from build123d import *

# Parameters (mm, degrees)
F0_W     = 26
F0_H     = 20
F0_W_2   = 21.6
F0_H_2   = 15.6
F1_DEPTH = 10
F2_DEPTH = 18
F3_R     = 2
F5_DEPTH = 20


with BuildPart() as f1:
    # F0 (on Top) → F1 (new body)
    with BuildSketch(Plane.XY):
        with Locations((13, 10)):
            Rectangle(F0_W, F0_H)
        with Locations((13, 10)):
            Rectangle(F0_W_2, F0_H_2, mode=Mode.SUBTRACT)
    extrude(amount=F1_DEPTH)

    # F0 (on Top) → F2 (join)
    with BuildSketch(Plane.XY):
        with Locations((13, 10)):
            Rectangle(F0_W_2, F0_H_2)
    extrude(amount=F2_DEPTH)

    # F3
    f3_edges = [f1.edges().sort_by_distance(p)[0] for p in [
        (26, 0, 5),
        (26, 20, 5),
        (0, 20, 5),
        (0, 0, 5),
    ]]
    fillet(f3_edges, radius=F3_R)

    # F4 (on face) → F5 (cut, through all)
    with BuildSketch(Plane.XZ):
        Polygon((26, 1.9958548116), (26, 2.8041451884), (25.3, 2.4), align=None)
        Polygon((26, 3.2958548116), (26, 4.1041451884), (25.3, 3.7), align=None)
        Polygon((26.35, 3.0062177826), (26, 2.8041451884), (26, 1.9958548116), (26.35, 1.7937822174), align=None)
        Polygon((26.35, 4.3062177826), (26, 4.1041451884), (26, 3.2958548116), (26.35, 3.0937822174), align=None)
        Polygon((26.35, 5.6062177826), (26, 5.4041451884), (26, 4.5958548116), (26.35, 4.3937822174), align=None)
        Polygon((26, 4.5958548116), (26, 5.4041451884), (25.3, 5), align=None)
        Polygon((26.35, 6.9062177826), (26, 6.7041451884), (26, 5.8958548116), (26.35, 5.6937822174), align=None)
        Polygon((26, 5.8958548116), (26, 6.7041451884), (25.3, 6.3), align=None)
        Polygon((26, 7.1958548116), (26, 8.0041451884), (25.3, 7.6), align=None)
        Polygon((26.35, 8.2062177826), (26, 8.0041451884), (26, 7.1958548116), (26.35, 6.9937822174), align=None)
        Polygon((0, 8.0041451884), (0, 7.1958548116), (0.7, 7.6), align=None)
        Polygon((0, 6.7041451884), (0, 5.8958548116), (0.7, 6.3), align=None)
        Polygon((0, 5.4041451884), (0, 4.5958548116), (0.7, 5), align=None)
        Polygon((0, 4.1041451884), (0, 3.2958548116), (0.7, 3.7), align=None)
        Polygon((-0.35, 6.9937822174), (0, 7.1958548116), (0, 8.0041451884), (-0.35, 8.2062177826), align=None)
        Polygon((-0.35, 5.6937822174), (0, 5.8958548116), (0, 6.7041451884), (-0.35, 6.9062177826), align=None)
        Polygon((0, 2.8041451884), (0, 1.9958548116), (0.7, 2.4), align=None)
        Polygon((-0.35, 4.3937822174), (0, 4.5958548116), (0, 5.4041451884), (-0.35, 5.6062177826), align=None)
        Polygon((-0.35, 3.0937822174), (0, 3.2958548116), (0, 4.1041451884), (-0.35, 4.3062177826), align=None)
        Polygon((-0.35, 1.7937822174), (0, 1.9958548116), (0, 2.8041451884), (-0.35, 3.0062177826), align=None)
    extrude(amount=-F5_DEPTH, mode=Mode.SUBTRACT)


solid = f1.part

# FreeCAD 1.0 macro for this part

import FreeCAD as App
import Part
import Sketcher
Q = App.Units.Quantity


def edges_at(feature, points):
    """Names of the edges that pass closest to the given points."""
    edges = feature.Shape.Edges
    near = lambda p: min(range(len(edges)), key=lambda i: edges[i].distToShape(Part.Vertex(*p))[0])
    return sorted({f"Edge{near(p) + 1}" for p in points})

doc = App.newDocument("Part")
body = doc.addObject("PartDesign::Body", "Body")

# Sketch on XY plane
sketch1 = body.newObject("Sketcher::SketchObject", "Sketch")
sketch1.AttachmentSupport = (doc.getObject("XY_Plane"), [""])
sketch1.MapMode = "FlatFace"
sketch1.addGeometry(Part.LineSegment(App.Vector(0, 20, 0), App.Vector(0, 0, 0)), False)
sketch1.addGeometry(Part.LineSegment(App.Vector(0, 0, 0), App.Vector(26, 0, 0)), False)
sketch1.addGeometry(Part.LineSegment(App.Vector(26, 0, 0), App.Vector(26, 20, 0)), False)
sketch1.addGeometry(Part.LineSegment(App.Vector(26, 20, 0), App.Vector(0, 20, 0)), False)
sketch1.addGeometry(Part.LineSegment(App.Vector(24, 2, 0), App.Vector(2, 2, 0)), False)
sketch1.addGeometry(Part.LineSegment(App.Vector(2, 2, 0), App.Vector(2, 18, 0)), False)
sketch1.addGeometry(Part.LineSegment(App.Vector(2, 18, 0), App.Vector(24, 18, 0)), False)
sketch1.addGeometry(Part.LineSegment(App.Vector(24, 18, 0), App.Vector(24, 2, 0)), False)
sketch1.addConstraint(Sketcher.Constraint("Coincident", 0, 2, 1, 1))
sketch1.addConstraint(Sketcher.Constraint("Coincident", 1, 2, 2, 1))
sketch1.addConstraint(Sketcher.Constraint("Coincident", 2, 2, 3, 1))
sketch1.addConstraint(Sketcher.Constraint("Coincident", 3, 2, 0, 1))
sketch1.addConstraint(Sketcher.Constraint("Coincident", 4, 2, 5, 1))
sketch1.addConstraint(Sketcher.Constraint("Coincident", 5, 2, 6, 1))
sketch1.addConstraint(Sketcher.Constraint("Coincident", 6, 2, 7, 1))
sketch1.addConstraint(Sketcher.Constraint("Coincident", 7, 2, 4, 1))
sketch1.addConstraint(Sketcher.Constraint("Vertical", 0))
sketch1.addConstraint(Sketcher.Constraint("Horizontal", 1))
sketch1.addConstraint(Sketcher.Constraint("Vertical", 2))
sketch1.addConstraint(Sketcher.Constraint("Horizontal", 3))
sketch1.addConstraint(Sketcher.Constraint("Horizontal", 4))
sketch1.addConstraint(Sketcher.Constraint("Vertical", 5))
sketch1.addConstraint(Sketcher.Constraint("Horizontal", 6))
sketch1.addConstraint(Sketcher.Constraint("Vertical", 7))
sketch1.addConstraint(Sketcher.Constraint("Coincident", 0, 2, -1, 1))
sketch1.addConstraint(Sketcher.Constraint("DistanceX", 1, 1, 1, 2, Q("26 mm")))
sketch1.addConstraint(Sketcher.Constraint("DistanceY", 0, 2, 0, 1, Q("20 mm")))
sketch1.addConstraint(Sketcher.Constraint("DistanceX", 4, 2, 4, 1, Q("21.6 mm")))
sketch1.addConstraint(Sketcher.Constraint("DistanceY", 5, 1, 5, 2, Q("15.6 mm")))
sketch1.addConstraint(Sketcher.Constraint("DistanceX", -1, 1, 4, 2, Q("2.2 mm")))
sketch1.addConstraint(Sketcher.Constraint("DistanceY", -1, 1, 4, 2, Q("2.2 mm")))
pad1 = body.newObject("PartDesign::Pad", "Pad")
pad1.Profile = sketch1
pad1.Length = 10

# Sketch on XY plane
sketch2 = body.newObject("Sketcher::SketchObject", "Sketch001")
sketch2.AttachmentSupport = (doc.getObject("XY_Plane"), [""])
sketch2.MapMode = "FlatFace"
sketch2.addGeometry(Part.LineSegment(App.Vector(2, 18, 0), App.Vector(2, 2, 0)), False)
sketch2.addGeometry(Part.LineSegment(App.Vector(2, 2, 0), App.Vector(24, 2, 0)), False)
sketch2.addGeometry(Part.LineSegment(App.Vector(24, 2, 0), App.Vector(24, 18, 0)), False)
sketch2.addGeometry(Part.LineSegment(App.Vector(24, 18, 0), App.Vector(2, 18, 0)), False)
sketch2.addConstraint(Sketcher.Constraint("Coincident", 0, 2, 1, 1))
sketch2.addConstraint(Sketcher.Constraint("Coincident", 1, 2, 2, 1))
sketch2.addConstraint(Sketcher.Constraint("Coincident", 2, 2, 3, 1))
sketch2.addConstraint(Sketcher.Constraint("Coincident", 3, 2, 0, 1))
sketch2.addConstraint(Sketcher.Constraint("Vertical", 0))
sketch2.addConstraint(Sketcher.Constraint("Horizontal", 1))
sketch2.addConstraint(Sketcher.Constraint("Vertical", 2))
sketch2.addConstraint(Sketcher.Constraint("Horizontal", 3))
sketch2.addConstraint(Sketcher.Constraint("DistanceX", 1, 1, 1, 2, Q("21.6 mm")))
sketch2.addConstraint(Sketcher.Constraint("DistanceY", 0, 2, 0, 1, Q("15.6 mm")))
sketch2.addConstraint(Sketcher.Constraint("DistanceX", -1, 1, 0, 2, Q("2.2 mm")))
sketch2.addConstraint(Sketcher.Constraint("DistanceY", -1, 1, 0, 2, Q("2.2 mm")))
pad2 = body.newObject("PartDesign::Pad", "Pad001")
pad2.Profile = sketch2
pad2.Length = 18
doc.recompute()

fillet = body.newObject("PartDesign::Fillet", "Fillet")
fillet.Base = (pad2, edges_at(pad2, [
    (26, 0, 5),
    (26, 20, 5),
    (0, 20, 5),
    (0, 0, 5),
]))
fillet.Radius = 2

# Sketch on XZ plane
sketch3 = body.newObject("Sketcher::SketchObject", "Sketch002")
sketch3.AttachmentSupport = (doc.getObject("XZ_Plane"), [""])
sketch3.MapMode = "FlatFace"
sketch3.addGeometry(Part.LineSegment(App.Vector(25.3, 2.4, 0), App.Vector(26.4, 1.8, 0)), False)
sketch3.addGeometry(Part.LineSegment(App.Vector(26.4, 1.8, 0), App.Vector(26.4, 3, 0)), False)
sketch3.addGeometry(Part.LineSegment(App.Vector(26.4, 3, 0), App.Vector(25.3, 2.4, 0)), False)
sketch3.addGeometry(Part.LineSegment(App.Vector(25.3, 3.7, 0), App.Vector(26.4, 3.1, 0)), False)
sketch3.addGeometry(Part.LineSegment(App.Vector(26.4, 3.1, 0), App.Vector(26.4, 4.3, 0)), False)
sketch3.addGeometry(Part.LineSegment(App.Vector(26.4, 4.3, 0), App.Vector(25.3, 3.7, 0)), False)
sketch3.addGeometry(Part.LineSegment(App.Vector(26.4, 5.6, 0), App.Vector(25.3, 5, 0)), False)
sketch3.addGeometry(Part.LineSegment(App.Vector(25.3, 5, 0), App.Vector(26.4, 4.4, 0)), False)
sketch3.addGeometry(Part.LineSegment(App.Vector(26.4, 4.4, 0), App.Vector(26.4, 5.6, 0)), False)
sketch3.addGeometry(Part.LineSegment(App.Vector(26.4, 6.9, 0), App.Vector(25.3, 6.3, 0)), False)
sketch3.addGeometry(Part.LineSegment(App.Vector(25.3, 6.3, 0), App.Vector(26.4, 5.7, 0)), False)
sketch3.addGeometry(Part.LineSegment(App.Vector(26.4, 5.7, 0), App.Vector(26.4, 6.9, 0)), False)
sketch3.addGeometry(Part.LineSegment(App.Vector(25.3, 7.6, 0), App.Vector(26.4, 7, 0)), False)
sketch3.addGeometry(Part.LineSegment(App.Vector(26.4, 7, 0), App.Vector(26.4, 8.2, 0)), False)
sketch3.addGeometry(Part.LineSegment(App.Vector(26.4, 8.2, 0), App.Vector(25.3, 7.6, 0)), False)
sketch3.addGeometry(Part.LineSegment(App.Vector(0.7, 7.6, 0), App.Vector(-0.3, 8.2, 0)), False)
sketch3.addGeometry(Part.LineSegment(App.Vector(-0.3, 8.2, 0), App.Vector(-0.3, 7, 0)), False)
sketch3.addGeometry(Part.LineSegment(App.Vector(-0.3, 7, 0), App.Vector(0.7, 7.6, 0)), False)
sketch3.addGeometry(Part.LineSegment(App.Vector(0.7, 6.3, 0), App.Vector(-0.3, 6.9, 0)), False)
sketch3.addGeometry(Part.LineSegment(App.Vector(-0.3, 6.9, 0), App.Vector(-0.3, 5.7, 0)), False)
sketch3.addGeometry(Part.LineSegment(App.Vector(-0.3, 5.7, 0), App.Vector(0.7, 6.3, 0)), False)
sketch3.addGeometry(Part.LineSegment(App.Vector(0.7, 5, 0), App.Vector(-0.3, 5.6, 0)), False)
sketch3.addGeometry(Part.LineSegment(App.Vector(-0.3, 5.6, 0), App.Vector(-0.3, 4.4, 0)), False)
sketch3.addGeometry(Part.LineSegment(App.Vector(-0.3, 4.4, 0), App.Vector(0.7, 5, 0)), False)
sketch3.addGeometry(Part.LineSegment(App.Vector(0.7, 3.7, 0), App.Vector(-0.3, 4.3, 0)), False)
sketch3.addGeometry(Part.LineSegment(App.Vector(-0.3, 4.3, 0), App.Vector(-0.3, 3.1, 0)), False)
sketch3.addGeometry(Part.LineSegment(App.Vector(-0.3, 3.1, 0), App.Vector(0.7, 3.7, 0)), False)
sketch3.addGeometry(Part.LineSegment(App.Vector(0.7, 2.4, 0), App.Vector(-0.3, 3, 0)), False)
sketch3.addGeometry(Part.LineSegment(App.Vector(-0.3, 3, 0), App.Vector(-0.3, 1.8, 0)), False)
sketch3.addGeometry(Part.LineSegment(App.Vector(-0.3, 1.8, 0), App.Vector(0.7, 2.4, 0)), False)
sketch3.addConstraint(Sketcher.Constraint("Coincident", 0, 2, 1, 1))
sketch3.addConstraint(Sketcher.Constraint("Coincident", 1, 2, 2, 1))
sketch3.addConstraint(Sketcher.Constraint("Coincident", 2, 2, 0, 1))
sketch3.addConstraint(Sketcher.Constraint("Coincident", 3, 2, 4, 1))
sketch3.addConstraint(Sketcher.Constraint("Coincident", 4, 2, 5, 1))
sketch3.addConstraint(Sketcher.Constraint("Coincident", 5, 2, 3, 1))
sketch3.addConstraint(Sketcher.Constraint("Coincident", 6, 2, 7, 1))
sketch3.addConstraint(Sketcher.Constraint("Coincident", 7, 2, 8, 1))
sketch3.addConstraint(Sketcher.Constraint("Coincident", 8, 2, 6, 1))
sketch3.addConstraint(Sketcher.Constraint("Coincident", 9, 2, 10, 1))
sketch3.addConstraint(Sketcher.Constraint("Coincident", 10, 2, 11, 1))
sketch3.addConstraint(Sketcher.Constraint("Coincident", 11, 2, 9, 1))
sketch3.addConstraint(Sketcher.Constraint("Coincident", 12, 2, 13, 1))
sketch3.addConstraint(Sketcher.Constraint("Coincident", 13, 2, 14, 1))
sketch3.addConstraint(Sketcher.Constraint("Coincident", 14, 2, 12, 1))
sketch3.addConstraint(Sketcher.Constraint("Coincident", 15, 2, 16, 1))
sketch3.addConstraint(Sketcher.Constraint("Coincident", 16, 2, 17, 1))
sketch3.addConstraint(Sketcher.Constraint("Coincident", 17, 2, 15, 1))
sketch3.addConstraint(Sketcher.Constraint("Coincident", 18, 2, 19, 1))
sketch3.addConstraint(Sketcher.Constraint("Coincident", 19, 2, 20, 1))
sketch3.addConstraint(Sketcher.Constraint("Coincident", 20, 2, 18, 1))
sketch3.addConstraint(Sketcher.Constraint("Coincident", 21, 2, 22, 1))
sketch3.addConstraint(Sketcher.Constraint("Coincident", 22, 2, 23, 1))
sketch3.addConstraint(Sketcher.Constraint("Coincident", 23, 2, 21, 1))
sketch3.addConstraint(Sketcher.Constraint("Coincident", 24, 2, 25, 1))
sketch3.addConstraint(Sketcher.Constraint("Coincident", 25, 2, 26, 1))
sketch3.addConstraint(Sketcher.Constraint("Coincident", 26, 2, 24, 1))
sketch3.addConstraint(Sketcher.Constraint("Coincident", 27, 2, 28, 1))
sketch3.addConstraint(Sketcher.Constraint("Coincident", 28, 2, 29, 1))
sketch3.addConstraint(Sketcher.Constraint("Coincident", 29, 2, 27, 1))
sketch3.addConstraint(Sketcher.Constraint("Vertical", 1))
sketch3.addConstraint(Sketcher.Constraint("Vertical", 4))
sketch3.addConstraint(Sketcher.Constraint("Vertical", 8))
sketch3.addConstraint(Sketcher.Constraint("Vertical", 11))
sketch3.addConstraint(Sketcher.Constraint("Vertical", 13))
sketch3.addConstraint(Sketcher.Constraint("Vertical", 16))
sketch3.addConstraint(Sketcher.Constraint("Vertical", 19))
sketch3.addConstraint(Sketcher.Constraint("Vertical", 22))
sketch3.addConstraint(Sketcher.Constraint("Vertical", 25))
sketch3.addConstraint(Sketcher.Constraint("Vertical", 28))
sketch3.addConstraint(Sketcher.Constraint("Parallel", 0, 3))
sketch3.addConstraint(Sketcher.Constraint("Parallel", 2, 5))
sketch3.addConstraint(Sketcher.Constraint("Parallel", 5, 6))
sketch3.addConstraint(Sketcher.Constraint("Parallel", 3, 7))
sketch3.addConstraint(Sketcher.Constraint("Parallel", 6, 9))
sketch3.addConstraint(Sketcher.Constraint("Parallel", 7, 10))
sketch3.addConstraint(Sketcher.Constraint("Parallel", 10, 12))
sketch3.addConstraint(Sketcher.Constraint("Parallel", 9, 14))
sketch3.addConstraint(Sketcher.Constraint("Parallel", 12, 15))
sketch3.addConstraint(Sketcher.Constraint("Parallel", 14, 17))
sketch3.addConstraint(Sketcher.Constraint("Parallel", 15, 18))
sketch3.addConstraint(Sketcher.Constraint("Parallel", 17, 20))
sketch3.addConstraint(Sketcher.Constraint("Parallel", 18, 21))
sketch3.addConstraint(Sketcher.Constraint("Parallel", 20, 23))
sketch3.addConstraint(Sketcher.Constraint("Parallel", 21, 24))
sketch3.addConstraint(Sketcher.Constraint("Parallel", 23, 26))
sketch3.addConstraint(Sketcher.Constraint("Parallel", 24, 27))
sketch3.addConstraint(Sketcher.Constraint("Parallel", 26, 29))
sketch3.addConstraint(Sketcher.Constraint("Horizontal", 13, 2, 15, 2))
sketch3.addConstraint(Sketcher.Constraint("Horizontal", 12, 2, 16, 2))
sketch3.addConstraint(Sketcher.Constraint("Horizontal", 14, 2, 17, 2))
sketch3.addConstraint(Sketcher.Constraint("Horizontal", 11, 2, 18, 2))
sketch3.addConstraint(Sketcher.Constraint("Horizontal", 10, 2, 19, 2))
sketch3.addConstraint(Sketcher.Constraint("Horizontal", 8, 2, 21, 2))
sketch3.addConstraint(Sketcher.Constraint("Horizontal", 7, 2, 22, 2))
sketch3.addConstraint(Sketcher.Constraint("Horizontal", 4, 2, 24, 2))
sketch3.addConstraint(Sketcher.Constraint("Horizontal", 3, 2, 25, 2))
sketch3.addConstraint(Sketcher.Constraint("Horizontal", 1, 2, 27, 2))
sketch3.addConstraint(Sketcher.Constraint("Horizontal", 0, 2, 28, 2))
sketch3.addConstraint(Sketcher.Constraint("Vertical", 1, 2, 3, 2))
sketch3.addConstraint(Sketcher.Constraint("Vertical", 2, 2, 5, 2))
sketch3.addConstraint(Sketcher.Constraint("Vertical", 5, 2, 6, 2))
sketch3.addConstraint(Sketcher.Constraint("Vertical", 4, 2, 7, 2))
sketch3.addConstraint(Sketcher.Constraint("Vertical", 6, 2, 9, 2))
sketch3.addConstraint(Sketcher.Constraint("Vertical", 8, 2, 10, 2))
sketch3.addConstraint(Sketcher.Constraint("Vertical", 11, 2, 12, 2))
sketch3.addConstraint(Sketcher.Constraint("Vertical", 9, 2, 14, 2))
sketch3.addConstraint(Sketcher.Constraint("Vertical", 16, 2, 18, 2))
sketch3.addConstraint(Sketcher.Constraint("Vertical", 19, 2, 21, 2))
sketch3.addConstraint(Sketcher.Constraint("Vertical", 22, 2, 24, 2))
sketch3.addConstraint(Sketcher.Constraint("Vertical", 25, 2, 27, 2))
sketch3.addConstraint(Sketcher.Constraint("Angle", 0, Q("-30 deg")))
sketch3.addConstraint(Sketcher.Constraint("DistanceY", -1, 1, 6, 2, Q("5 mm")))
sketch3.addConstraint(Sketcher.Constraint("DistanceX", -1, 1, 2, 2, Q("25.3 mm")))
sketch3.addConstraint(Sketcher.Constraint("DistanceY", -1, 1, 2, 2, Q("2.4 mm")))
sketch3.addConstraint(Sketcher.Constraint("DistanceY", -1, 1, 5, 2, Q("3.7 mm")))
sketch3.addConstraint(Sketcher.Constraint("DistanceY", -1, 1, 9, 2, Q("6.3 mm")))
sketch3.addConstraint(Sketcher.Constraint("DistanceY", -1, 1, 14, 2, Q("7.6 mm")))
sketch3.addConstraint(Sketcher.Constraint("DistanceX", -1, 1, 17, 2, Q("0.7 mm")))
sketch3.addConstraint(Sketcher.Constraint("DistanceX", -1, 1, 0, 2, Q("26.35 mm")))
pocket1 = body.newObject("PartDesign::Pocket", "Pocket")
pocket1.Profile = sketch3
pocket1.Type = "ThroughAll"

doc.recompute()
